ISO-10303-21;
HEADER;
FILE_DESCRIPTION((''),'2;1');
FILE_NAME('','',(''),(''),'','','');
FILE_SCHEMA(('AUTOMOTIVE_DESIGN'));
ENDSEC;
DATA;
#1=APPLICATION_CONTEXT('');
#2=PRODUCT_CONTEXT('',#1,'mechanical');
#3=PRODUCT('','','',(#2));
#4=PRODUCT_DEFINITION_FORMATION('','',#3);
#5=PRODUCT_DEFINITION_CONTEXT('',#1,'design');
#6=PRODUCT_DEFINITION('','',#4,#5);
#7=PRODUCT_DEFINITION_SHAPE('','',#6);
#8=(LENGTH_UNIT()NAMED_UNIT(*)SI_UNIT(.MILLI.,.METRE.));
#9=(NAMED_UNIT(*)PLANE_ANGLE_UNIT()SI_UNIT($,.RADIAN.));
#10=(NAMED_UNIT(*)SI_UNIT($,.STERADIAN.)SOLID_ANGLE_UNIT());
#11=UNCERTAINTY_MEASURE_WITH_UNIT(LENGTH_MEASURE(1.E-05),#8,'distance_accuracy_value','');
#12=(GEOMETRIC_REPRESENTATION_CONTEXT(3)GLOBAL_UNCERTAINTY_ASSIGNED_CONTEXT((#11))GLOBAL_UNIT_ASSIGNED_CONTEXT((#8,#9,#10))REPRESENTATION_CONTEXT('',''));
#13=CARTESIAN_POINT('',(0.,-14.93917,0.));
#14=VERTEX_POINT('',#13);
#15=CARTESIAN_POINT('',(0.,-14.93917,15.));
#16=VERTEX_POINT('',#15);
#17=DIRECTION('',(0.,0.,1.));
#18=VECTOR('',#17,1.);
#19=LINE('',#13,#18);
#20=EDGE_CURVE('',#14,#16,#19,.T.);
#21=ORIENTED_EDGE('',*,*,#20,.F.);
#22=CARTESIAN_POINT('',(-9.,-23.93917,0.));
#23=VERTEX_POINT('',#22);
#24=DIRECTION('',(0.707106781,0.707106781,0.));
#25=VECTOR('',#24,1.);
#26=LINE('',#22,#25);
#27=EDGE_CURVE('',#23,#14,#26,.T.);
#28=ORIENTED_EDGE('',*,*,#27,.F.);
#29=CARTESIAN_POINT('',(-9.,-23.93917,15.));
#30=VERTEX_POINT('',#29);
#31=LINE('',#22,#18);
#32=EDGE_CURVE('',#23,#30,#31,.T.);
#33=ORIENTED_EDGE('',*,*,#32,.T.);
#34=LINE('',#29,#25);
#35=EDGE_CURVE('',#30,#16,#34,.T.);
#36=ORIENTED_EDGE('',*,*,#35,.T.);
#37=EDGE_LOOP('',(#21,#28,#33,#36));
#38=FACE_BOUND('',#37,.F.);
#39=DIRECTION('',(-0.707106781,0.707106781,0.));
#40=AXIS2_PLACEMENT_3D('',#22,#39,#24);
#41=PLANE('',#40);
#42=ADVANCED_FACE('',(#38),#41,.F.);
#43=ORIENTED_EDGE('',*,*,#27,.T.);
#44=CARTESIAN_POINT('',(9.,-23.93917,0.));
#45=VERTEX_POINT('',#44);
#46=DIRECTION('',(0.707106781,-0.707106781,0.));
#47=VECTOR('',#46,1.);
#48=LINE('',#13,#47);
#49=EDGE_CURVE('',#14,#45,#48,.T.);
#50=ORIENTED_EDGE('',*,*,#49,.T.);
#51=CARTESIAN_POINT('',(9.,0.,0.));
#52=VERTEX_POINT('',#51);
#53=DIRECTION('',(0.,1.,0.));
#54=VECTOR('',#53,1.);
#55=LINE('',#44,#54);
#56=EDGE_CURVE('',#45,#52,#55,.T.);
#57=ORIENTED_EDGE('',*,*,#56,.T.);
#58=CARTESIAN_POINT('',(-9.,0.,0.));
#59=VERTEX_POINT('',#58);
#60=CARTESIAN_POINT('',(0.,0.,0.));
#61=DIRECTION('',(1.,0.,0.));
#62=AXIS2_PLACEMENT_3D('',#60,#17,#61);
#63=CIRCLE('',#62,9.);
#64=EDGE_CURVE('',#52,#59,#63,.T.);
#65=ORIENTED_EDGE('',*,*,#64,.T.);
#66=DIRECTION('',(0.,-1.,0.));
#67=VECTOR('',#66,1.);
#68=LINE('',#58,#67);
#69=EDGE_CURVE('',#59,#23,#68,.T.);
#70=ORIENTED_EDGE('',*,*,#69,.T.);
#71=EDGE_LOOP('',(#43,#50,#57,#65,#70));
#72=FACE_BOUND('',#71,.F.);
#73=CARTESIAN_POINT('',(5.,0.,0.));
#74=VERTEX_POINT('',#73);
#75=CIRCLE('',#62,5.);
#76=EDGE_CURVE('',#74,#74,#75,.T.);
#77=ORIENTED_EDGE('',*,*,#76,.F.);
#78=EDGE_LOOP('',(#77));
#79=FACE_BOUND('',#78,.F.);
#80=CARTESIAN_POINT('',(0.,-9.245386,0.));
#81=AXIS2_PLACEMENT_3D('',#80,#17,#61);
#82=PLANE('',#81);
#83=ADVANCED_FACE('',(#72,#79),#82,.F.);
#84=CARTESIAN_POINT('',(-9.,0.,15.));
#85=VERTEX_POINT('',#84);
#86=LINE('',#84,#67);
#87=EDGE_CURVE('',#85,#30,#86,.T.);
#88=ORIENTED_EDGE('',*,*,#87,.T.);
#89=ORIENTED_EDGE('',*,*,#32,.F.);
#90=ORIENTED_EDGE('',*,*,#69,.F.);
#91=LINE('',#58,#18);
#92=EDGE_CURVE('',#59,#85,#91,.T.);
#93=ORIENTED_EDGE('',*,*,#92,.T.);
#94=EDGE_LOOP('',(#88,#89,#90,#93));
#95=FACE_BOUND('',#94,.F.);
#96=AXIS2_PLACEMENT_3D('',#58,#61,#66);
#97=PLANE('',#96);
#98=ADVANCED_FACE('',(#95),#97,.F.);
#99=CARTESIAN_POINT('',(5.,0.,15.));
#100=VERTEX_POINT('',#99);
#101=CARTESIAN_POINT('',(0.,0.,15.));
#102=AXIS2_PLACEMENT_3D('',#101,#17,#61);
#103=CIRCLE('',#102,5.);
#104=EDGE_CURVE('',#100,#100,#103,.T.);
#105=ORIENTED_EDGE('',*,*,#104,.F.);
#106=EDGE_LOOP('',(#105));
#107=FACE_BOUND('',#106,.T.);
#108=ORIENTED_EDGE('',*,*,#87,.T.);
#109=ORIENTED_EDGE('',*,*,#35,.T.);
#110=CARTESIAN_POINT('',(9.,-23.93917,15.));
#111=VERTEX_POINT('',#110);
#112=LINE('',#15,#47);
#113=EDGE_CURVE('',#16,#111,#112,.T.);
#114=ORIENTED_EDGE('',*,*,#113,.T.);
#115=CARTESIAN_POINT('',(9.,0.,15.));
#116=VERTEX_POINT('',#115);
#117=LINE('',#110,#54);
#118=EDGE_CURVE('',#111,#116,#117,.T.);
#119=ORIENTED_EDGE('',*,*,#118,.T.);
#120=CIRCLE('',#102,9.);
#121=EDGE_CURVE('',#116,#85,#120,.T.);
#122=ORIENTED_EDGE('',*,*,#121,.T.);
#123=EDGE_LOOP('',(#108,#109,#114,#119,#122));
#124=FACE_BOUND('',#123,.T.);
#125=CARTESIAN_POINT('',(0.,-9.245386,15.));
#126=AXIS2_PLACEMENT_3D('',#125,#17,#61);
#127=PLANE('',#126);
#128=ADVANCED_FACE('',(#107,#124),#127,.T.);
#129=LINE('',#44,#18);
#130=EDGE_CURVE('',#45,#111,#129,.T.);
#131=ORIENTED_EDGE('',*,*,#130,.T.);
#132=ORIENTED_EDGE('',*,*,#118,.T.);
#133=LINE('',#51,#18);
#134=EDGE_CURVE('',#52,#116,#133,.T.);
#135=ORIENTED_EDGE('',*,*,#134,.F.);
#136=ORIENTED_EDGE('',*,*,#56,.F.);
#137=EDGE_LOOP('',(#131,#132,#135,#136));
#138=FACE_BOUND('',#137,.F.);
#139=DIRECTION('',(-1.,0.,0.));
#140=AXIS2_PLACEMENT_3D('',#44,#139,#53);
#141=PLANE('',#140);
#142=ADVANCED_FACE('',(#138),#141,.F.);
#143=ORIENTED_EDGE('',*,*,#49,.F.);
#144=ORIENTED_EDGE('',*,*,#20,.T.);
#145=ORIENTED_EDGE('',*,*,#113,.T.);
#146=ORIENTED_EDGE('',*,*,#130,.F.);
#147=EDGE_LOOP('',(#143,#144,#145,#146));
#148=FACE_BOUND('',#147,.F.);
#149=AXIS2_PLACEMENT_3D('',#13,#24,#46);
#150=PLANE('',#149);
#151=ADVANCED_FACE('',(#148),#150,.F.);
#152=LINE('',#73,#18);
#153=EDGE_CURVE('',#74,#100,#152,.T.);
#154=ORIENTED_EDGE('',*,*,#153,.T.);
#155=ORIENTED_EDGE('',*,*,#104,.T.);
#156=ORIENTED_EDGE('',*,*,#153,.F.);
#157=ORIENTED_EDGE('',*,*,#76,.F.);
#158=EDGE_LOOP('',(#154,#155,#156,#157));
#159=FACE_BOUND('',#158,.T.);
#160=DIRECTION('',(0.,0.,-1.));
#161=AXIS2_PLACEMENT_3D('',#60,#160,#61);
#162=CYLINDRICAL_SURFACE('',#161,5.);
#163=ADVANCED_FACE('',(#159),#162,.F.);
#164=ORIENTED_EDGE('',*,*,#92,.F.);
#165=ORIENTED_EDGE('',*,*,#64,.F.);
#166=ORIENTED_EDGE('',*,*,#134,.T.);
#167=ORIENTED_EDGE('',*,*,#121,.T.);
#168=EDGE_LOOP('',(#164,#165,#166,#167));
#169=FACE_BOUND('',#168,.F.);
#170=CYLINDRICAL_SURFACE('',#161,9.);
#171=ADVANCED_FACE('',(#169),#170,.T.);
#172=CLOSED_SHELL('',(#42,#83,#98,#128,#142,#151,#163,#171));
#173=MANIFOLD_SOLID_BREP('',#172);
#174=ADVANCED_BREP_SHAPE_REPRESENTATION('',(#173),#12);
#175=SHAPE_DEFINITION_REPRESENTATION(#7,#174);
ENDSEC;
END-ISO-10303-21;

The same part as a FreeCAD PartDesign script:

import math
import FreeCAD as App
import Part
import Sketcher

doc = App.newDocument("Part")
body = doc.addObject("PartDesign::Body", "Body")

sketch1 = doc.addObject("Sketcher::SketchObject", "Sketch")
body.addObject(sketch1)
sketch1.AttachmentSupport = (doc.XY_Plane, [""])
sketch1.MapMode = "FlatFace"
sketch1.addGeometry([
    Part.LineSegment(App.Vector(9, -24, 0), App.Vector(9, 0, 0)),
    Part.ArcOfCircle(Part.Circle(App.Vector(0, 0, 0), App.Vector(0, 0, 1), 9), math.radians(0), math.radians(180)),
    Part.LineSegment(App.Vector(-9, 0, 0), App.Vector(-9, -24, 0)),
    Part.LineSegment(App.Vector(-9, -24, 0), App.Vector(0, -15, 0)),
    Part.LineSegment(App.Vector(0, -15, 0), App.Vector(9, -24, 0)),
    Part.Circle(App.Vector(0, 0, 0), App.Vector(0, 0, 1), 5),
], False)
sketch1.addConstraint([
    Sketcher.Constraint("Tangent", 0, 2, 1, 1),
    Sketcher.Constraint("Tangent", 1, 2, 2, 1),
    Sketcher.Constraint("Coincident", 2, 2, 3, 1),
    Sketcher.Constraint("Coincident", 3, 2, 4, 1),
    Sketcher.Constraint("Coincident", 4, 2, 0, 1),
    Sketcher.Constraint("Vertical", 0),
    Sketcher.Constraint("Vertical", 2),
    Sketcher.Constraint("Coincident", 1, 3, -1, 1),
    Sketcher.Constraint("Coincident", 5, 3, -1, 1),
    Sketcher.Constraint("PointOnObject", 3, 2, -2),
    Sketcher.Constraint("Perpendicular", 3, 4),
    Sketcher.Constraint("Horizontal", 2, 2, 4, 2),
    Sketcher.Constraint("Diameter", 5, 10.0),
    Sketcher.Constraint("Radius", 1, 9.0),
    Sketcher.Constraint("DistanceY", 0, 1, 0, 2, 23.93917),
])
pad1 = doc.addObject("PartDesign::Pad", "Pad")
body.addObject(pad1)
pad1.Profile = sketch1
pad1.Length = 15

doc.recompute()
